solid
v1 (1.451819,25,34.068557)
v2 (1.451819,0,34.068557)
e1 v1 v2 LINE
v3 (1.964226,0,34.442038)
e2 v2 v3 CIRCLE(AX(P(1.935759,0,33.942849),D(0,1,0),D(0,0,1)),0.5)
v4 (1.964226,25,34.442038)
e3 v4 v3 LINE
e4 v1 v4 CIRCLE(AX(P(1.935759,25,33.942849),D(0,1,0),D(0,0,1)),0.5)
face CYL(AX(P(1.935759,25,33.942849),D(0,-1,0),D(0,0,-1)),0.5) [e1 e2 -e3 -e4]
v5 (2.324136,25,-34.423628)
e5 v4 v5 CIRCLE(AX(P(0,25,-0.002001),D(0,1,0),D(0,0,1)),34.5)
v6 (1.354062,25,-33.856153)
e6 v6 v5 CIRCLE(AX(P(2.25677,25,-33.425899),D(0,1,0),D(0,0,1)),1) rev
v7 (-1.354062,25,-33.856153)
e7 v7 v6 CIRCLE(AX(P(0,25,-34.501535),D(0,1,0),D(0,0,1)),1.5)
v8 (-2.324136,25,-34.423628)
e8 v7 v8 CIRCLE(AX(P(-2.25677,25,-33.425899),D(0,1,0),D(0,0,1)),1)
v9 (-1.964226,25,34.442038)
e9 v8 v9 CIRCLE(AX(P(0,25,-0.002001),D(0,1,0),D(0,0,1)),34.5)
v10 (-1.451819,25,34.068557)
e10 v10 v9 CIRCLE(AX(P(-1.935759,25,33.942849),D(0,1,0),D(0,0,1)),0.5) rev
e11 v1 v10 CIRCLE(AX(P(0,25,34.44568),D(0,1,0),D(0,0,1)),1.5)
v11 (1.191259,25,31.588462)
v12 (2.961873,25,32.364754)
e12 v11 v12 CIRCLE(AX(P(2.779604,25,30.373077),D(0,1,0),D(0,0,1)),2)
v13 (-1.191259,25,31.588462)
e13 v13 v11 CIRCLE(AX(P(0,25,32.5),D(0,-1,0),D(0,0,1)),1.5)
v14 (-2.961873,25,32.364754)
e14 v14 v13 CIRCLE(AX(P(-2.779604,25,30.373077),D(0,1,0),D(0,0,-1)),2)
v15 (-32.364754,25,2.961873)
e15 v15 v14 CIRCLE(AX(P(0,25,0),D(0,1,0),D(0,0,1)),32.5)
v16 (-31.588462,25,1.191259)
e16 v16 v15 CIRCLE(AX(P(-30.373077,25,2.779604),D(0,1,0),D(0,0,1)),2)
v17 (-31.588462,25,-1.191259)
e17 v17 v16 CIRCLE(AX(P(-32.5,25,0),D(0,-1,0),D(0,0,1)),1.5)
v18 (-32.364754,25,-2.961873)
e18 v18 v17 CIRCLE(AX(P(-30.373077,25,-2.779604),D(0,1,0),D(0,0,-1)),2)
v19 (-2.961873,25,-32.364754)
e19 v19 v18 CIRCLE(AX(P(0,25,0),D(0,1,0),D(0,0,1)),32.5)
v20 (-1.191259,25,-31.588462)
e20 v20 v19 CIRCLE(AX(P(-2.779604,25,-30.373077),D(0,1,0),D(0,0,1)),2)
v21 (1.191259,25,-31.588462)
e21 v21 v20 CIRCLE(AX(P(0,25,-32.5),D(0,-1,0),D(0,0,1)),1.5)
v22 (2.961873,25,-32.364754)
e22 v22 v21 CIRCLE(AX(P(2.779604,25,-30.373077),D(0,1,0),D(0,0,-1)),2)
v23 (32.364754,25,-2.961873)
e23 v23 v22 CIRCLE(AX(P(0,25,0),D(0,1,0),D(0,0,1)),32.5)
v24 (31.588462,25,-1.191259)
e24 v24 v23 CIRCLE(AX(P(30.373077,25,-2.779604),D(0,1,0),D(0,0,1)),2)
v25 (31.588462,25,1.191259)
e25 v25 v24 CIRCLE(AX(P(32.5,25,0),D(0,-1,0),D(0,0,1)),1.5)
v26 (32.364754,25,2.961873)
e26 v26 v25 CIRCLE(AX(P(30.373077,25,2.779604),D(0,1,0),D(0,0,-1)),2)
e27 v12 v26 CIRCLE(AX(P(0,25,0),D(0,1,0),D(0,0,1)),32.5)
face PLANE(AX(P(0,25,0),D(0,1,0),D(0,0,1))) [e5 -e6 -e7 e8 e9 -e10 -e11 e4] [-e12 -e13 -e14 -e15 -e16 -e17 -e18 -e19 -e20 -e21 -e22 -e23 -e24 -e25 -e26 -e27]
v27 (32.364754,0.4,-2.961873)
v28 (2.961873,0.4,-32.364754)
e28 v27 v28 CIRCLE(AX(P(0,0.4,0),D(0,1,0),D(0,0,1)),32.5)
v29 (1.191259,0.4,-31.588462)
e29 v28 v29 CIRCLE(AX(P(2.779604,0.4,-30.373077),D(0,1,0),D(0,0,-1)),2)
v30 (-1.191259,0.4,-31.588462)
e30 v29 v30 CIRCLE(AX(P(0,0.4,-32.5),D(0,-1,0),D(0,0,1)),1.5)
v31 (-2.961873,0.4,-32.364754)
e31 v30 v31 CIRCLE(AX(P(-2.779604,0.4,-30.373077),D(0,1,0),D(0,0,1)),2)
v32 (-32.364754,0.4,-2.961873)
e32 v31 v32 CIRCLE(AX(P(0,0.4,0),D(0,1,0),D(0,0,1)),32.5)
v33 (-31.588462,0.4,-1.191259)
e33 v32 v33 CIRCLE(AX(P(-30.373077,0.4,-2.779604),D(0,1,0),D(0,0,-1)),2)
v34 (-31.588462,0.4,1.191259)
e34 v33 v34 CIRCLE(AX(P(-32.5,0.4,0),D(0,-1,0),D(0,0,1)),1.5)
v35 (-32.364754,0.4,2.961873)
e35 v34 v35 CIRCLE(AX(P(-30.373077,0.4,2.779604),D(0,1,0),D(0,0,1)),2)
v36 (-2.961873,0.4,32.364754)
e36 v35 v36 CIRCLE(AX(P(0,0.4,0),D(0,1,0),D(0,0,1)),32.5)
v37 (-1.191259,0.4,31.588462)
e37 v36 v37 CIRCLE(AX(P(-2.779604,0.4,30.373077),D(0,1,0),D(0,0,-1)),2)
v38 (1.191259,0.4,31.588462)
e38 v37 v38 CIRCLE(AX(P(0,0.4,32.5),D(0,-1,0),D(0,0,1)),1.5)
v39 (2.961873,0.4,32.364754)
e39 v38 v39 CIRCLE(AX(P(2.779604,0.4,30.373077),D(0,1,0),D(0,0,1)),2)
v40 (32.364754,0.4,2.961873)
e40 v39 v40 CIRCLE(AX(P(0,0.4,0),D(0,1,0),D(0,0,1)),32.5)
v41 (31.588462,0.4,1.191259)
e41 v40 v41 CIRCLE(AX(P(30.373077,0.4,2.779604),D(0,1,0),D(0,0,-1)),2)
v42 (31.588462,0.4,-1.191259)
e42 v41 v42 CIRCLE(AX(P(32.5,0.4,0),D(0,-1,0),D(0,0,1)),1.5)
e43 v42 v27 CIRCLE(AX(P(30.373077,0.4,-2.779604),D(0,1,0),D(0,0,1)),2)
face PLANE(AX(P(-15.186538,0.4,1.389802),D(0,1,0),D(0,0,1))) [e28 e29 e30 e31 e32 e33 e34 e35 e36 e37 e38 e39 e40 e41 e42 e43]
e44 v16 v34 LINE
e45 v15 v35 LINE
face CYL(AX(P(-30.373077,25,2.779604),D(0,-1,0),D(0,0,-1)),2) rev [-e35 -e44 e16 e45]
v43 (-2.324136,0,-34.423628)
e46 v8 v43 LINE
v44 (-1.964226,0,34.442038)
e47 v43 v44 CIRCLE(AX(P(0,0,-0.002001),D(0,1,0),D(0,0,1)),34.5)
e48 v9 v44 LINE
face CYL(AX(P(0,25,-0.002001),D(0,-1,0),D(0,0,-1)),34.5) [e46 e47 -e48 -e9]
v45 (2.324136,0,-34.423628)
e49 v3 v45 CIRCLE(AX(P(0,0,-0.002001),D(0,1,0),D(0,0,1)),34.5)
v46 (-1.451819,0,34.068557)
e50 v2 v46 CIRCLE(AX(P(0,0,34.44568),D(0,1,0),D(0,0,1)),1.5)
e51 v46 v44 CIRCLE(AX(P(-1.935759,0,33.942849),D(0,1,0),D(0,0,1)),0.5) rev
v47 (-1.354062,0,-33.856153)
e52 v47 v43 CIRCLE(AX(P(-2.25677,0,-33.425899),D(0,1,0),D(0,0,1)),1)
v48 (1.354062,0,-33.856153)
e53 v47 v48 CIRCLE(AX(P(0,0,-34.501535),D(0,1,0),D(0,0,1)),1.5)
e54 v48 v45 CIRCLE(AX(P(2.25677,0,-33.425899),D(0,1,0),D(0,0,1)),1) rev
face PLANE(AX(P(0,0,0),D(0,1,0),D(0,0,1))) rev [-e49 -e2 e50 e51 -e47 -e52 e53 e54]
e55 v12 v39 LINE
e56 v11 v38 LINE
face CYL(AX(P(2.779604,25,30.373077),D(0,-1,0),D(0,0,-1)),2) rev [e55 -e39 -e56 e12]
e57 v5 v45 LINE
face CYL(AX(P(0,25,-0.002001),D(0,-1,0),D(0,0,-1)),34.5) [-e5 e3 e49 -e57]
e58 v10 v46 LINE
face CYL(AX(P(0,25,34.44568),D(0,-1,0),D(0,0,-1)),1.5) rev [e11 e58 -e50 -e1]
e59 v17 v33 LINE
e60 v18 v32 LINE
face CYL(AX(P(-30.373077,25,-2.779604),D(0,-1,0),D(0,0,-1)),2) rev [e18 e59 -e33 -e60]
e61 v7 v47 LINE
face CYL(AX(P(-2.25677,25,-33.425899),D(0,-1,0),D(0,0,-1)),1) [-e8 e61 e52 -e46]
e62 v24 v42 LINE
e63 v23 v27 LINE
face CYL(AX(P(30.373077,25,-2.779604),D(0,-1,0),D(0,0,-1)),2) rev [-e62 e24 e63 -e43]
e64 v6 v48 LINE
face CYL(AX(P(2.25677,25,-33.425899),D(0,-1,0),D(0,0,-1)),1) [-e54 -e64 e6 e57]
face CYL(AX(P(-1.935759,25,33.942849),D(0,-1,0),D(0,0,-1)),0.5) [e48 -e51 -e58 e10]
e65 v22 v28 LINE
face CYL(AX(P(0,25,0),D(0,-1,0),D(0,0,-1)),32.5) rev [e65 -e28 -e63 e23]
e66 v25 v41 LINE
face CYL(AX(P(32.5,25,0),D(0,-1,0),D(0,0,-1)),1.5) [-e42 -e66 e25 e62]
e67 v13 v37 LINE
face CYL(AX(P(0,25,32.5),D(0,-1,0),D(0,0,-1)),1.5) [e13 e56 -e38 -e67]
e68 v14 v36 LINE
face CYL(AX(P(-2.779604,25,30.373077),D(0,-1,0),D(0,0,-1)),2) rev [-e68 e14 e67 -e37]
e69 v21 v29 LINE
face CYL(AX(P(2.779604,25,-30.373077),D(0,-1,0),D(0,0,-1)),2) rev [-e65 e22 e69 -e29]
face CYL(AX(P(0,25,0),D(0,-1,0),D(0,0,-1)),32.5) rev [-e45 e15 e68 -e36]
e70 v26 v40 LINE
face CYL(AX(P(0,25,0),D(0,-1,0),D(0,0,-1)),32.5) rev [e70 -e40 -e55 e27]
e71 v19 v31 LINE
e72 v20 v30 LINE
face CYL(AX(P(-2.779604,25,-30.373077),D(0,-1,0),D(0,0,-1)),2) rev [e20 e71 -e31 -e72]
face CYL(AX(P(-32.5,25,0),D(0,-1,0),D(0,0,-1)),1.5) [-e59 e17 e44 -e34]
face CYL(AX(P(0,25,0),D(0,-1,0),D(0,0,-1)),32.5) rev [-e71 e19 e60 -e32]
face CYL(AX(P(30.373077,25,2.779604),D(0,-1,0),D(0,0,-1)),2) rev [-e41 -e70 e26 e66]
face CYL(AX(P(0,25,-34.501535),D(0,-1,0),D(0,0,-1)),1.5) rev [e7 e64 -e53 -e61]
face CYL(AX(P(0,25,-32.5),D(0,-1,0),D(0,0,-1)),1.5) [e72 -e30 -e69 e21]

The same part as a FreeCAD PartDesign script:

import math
import FreeCAD as App
import Part
import Sketcher

V = App.Vector

doc = App.newDocument("Part")
body = doc.addObject("PartDesign::Body", "Body")

sketch1 = doc.addObject("Sketcher::SketchObject", "Sketch")
body.addObject(sketch1)
sketch1.AttachmentSupport = (doc.XZ_Plane, [""])
sketch1.MapMode = "FlatFace"
sketch1.addGeometry(Part.ArcOfCircle(Part.Circle(V(1.9, 33.9, 0), V(0, 0, 1), 0.5), math.radians(87), math.radians(165)), False)
sketch1.addGeometry(Part.ArcOfCircle(Part.Circle(V(0, 0, 0), V(0, 0, 1), 34.5), math.radians(-8), math.radians(87)), False)
sketch1.addGeometry(Part.ArcOfCircle(Part.Circle(V(0, 0, 0), V(0, 0, 1), 34.5), math.radians(-86), math.radians(-8)), False)
sketch1.addGeometry(Part.ArcOfCircle(Part.Circle(V(2.3, -33.4, 0), V(0, 0, 1), 1), math.radians(-155), math.radians(-86)), False)
sketch1.addGeometry(Part.ArcOfCircle(Part.Circle(V(0, -34.5, 0), V(0, 0, 1), 1.5), math.radians(25), math.radians(155)), False)
sketch1.addGeometry(Part.ArcOfCircle(Part.Circle(V(-2.3, -33.4, 0), V(0, 0, 1), 1), math.radians(-94), math.radians(-25)), False)
sketch1.addGeometry(Part.ArcOfCircle(Part.Circle(V(0, 0, 0), V(0, 0, 1), 34.5), math.radians(-172), math.radians(-94)), False)
sketch1.addGeometry(Part.ArcOfCircle(Part.Circle(V(0, 0, 0), V(0, 0, 1), 34.5), math.radians(93), math.radians(188)), False)
sketch1.addGeometry(Part.ArcOfCircle(Part.Circle(V(-1.9, 33.9, 0), V(0, 0, 1), 0.5), math.radians(15), math.radians(93)), False)
sketch1.addGeometry(Part.ArcOfCircle(Part.Circle(V(0, 34.4, 0), V(0, 0, 1), 1.5), math.radians(-165), math.radians(-15)), False)
sketch1.addGeometry(Part.ArcOfCircle(Part.Circle(V(0, 0, 0), V(0, 0, 1), 4.5), math.radians(-57), math.radians(237)), False)
sketch1.addGeometry(Part.LineSegment(V(-2.4, -3.8, 0), V(2.4, -3.8, 0)), False)
sketch1.addConstraint(Sketcher.Constraint("Tangent", 0, 1, 1, 2))
sketch1.addConstraint(Sketcher.Constraint("Tangent", 1, 1, 2, 2))
sketch1.addConstraint(Sketcher.Constraint("Tangent", 2, 1, 3, 2))
sketch1.addConstraint(Sketcher.Constraint("Tangent", 3, 1, 4, 1))
sketch1.addConstraint(Sketcher.Constraint("Tangent", 4, 2, 5, 2))
sketch1.addConstraint(Sketcher.Constraint("Tangent", 5, 1, 6, 2))
sketch1.addConstraint(Sketcher.Constraint("Tangent", 6, 1, 7, 2))
sketch1.addConstraint(Sketcher.Constraint("Tangent", 7, 1, 8, 2))
sketch1.addConstraint(Sketcher.Constraint("Tangent", 8, 1, 9, 1))
sketch1.addConstraint(Sketcher.Constraint("Tangent", 9, 2, 0, 2))
sketch1.addConstraint(Sketcher.Constraint("Coincident", 10, 1, 11, 2))
sketch1.addConstraint(Sketcher.Constraint("Coincident", 11, 1, 10, 2))
sketch1.addConstraint(Sketcher.Constraint("Horizontal", 11))
sketch1.addConstraint(Sketcher.Constraint("Coincident", 6, 3, 1, 3))
sketch1.addConstraint(Sketcher.Constraint("Coincident", 10, 3, 1, 3))
sketch1.addConstraint(Sketcher.Constraint("Equal", 1, 2))
sketch1.addConstraint(Sketcher.Constraint("Equal", 3, 5))
sketch1.addConstraint(Sketcher.Constraint("Equal", 2, 6))
sketch1.addConstraint(Sketcher.Constraint("Equal", 6, 7))
sketch1.addConstraint(Sketcher.Constraint("Equal", 0, 8))
sketch1.addConstraint(Sketcher.Constraint("Equal", 4, 9))
sketch1.addConstraint(Sketcher.Constraint("Symmetric", 3, 3, 5, 3, -2))
sketch1.addConstraint(Sketcher.Constraint("PointOnObject", 9, 3, -2))
sketch1.addConstraint(Sketcher.Constraint("Horizontal", 1, 1, 6, 1))
sketch1.addConstraint(Sketcher.Constraint("Radius", 3, 1.0))
sketch1.addConstraint(Sketcher.Constraint("Radius", 0, 0.5))
sketch1.addConstraint(Sketcher.Constraint("Radius", 1, 34.5))
sketch1.addConstraint(Sketcher.Constraint("Radius", 4, 1.5))
sketch1.addConstraint(Sketcher.Constraint("DistanceX", 11, 1, 11, 2, 4.834))
sketch1.addConstraint(Sketcher.Constraint("DistanceY", 1, 3, -1, 1, 0.002001))
sketch1.addConstraint(Sketcher.Constraint("Radius", 10, 4.491513))
sketch1.addConstraint(Sketcher.Constraint("DistanceY", 3, 3, -1, 1, 33.425899))
sketch1.addConstraint(Sketcher.Constraint("DistanceX", -1, 1, 0, 3, 1.935759))
sketch1.addConstraint(Sketcher.Constraint("DistanceX", -1, 1, 1, 1, 34.198225))
pad1 = doc.addObject("PartDesign::Pad", "Pad")
body.addObject(pad1)
pad1.Profile = sketch1
pad1.Length = 25
pad1.Reversed = True

sketch2 = doc.addObject("Sketcher::SketchObject", "Sketch001")
body.addObject(sketch2)
sketch2.AttachmentSupport = (doc.XZ_Plane, [""])
sketch2.MapMode = "FlatFace"
sketch2.addGeometry(Part.ArcOfCircle(Part.Circle(V(0, 0, 0), V(0, 0, 1), 32.5), math.radians(95), math.radians(175)), False)
sketch2.addGeometry(Part.ArcOfCircle(Part.Circle(V(-2.8, 30.4, 0), V(0, 0, 1), 2), math.radians(37), math.radians(95)), False)
sketch2.addGeometry(Part.ArcOfCircle(Part.Circle(V(0, 32.5, 0), V(0, 0, 1), 1.5), math.radians(-143), math.radians(-37)), False)
sketch2.addGeometry(Part.ArcOfCircle(Part.Circle(V(2.8, 30.4, 0), V(0, 0, 1), 2), math.radians(85), math.radians(143)), False)
sketch2.addGeometry(Part.ArcOfCircle(Part.Circle(V(0, 0, 0), V(0, 0, 1), 32.5), math.radians(5), math.radians(85)), False)
sketch2.addGeometry(Part.ArcOfCircle(Part.Circle(V(30.4, 2.8, 0), V(0, 0, 1), 2), math.radians(-53), math.radians(5)), False)
sketch2.addGeometry(Part.ArcOfCircle(Part.Circle(V(32.5, 0, 0), V(0, 0, 1), 1.5), math.radians(127), math.radians(233)), False)
sketch2.addGeometry(Part.ArcOfCircle(Part.Circle(V(30.4, -2.8, 0), V(0, 0, 1), 2), math.radians(-5), math.radians(53)), False)
sketch2.addGeometry(Part.ArcOfCircle(Part.Circle(V(0, 0, 0), V(0, 0, 1), 32.5), math.radians(-85), math.radians(-5)), False)
sketch2.addGeometry(Part.ArcOfCircle(Part.Circle(V(2.8, -30.4, 0), V(0, 0, 1), 2), math.radians(-143), math.radians(-85)), False)
sketch2.addGeometry(Part.ArcOfCircle(Part.Circle(V(0, -32.5, 0), V(0, 0, 1), 1.5), math.radians(37), math.radians(143)), False)
sketch2.addGeometry(Part.ArcOfCircle(Part.Circle(V(-2.8, -30.4, 0), V(0, 0, 1), 2), math.radians(-95), math.radians(-37)), False)
sketch2.addGeometry(Part.ArcOfCircle(Part.Circle(V(0, 0, 0), V(0, 0, 1), 32.5), math.radians(-175), math.radians(-95)), False)
sketch2.addGeometry(Part.ArcOfCircle(Part.Circle(V(-30.4, -2.8, 0), V(0, 0, 1), 2), math.radians(127), math.radians(185)), False)
sketch2.addGeometry(Part.ArcOfCircle(Part.Circle(V(-32.5, 0, 0), V(0, 0, 1), 1.5), math.radians(-53), math.radians(53)), False)
sketch2.addGeometry(Part.ArcOfCircle(Part.Circle(V(-30.4, 2.8, 0), V(0, 0, 1), 2), math.radians(175), math.radians(233)), False)
sketch2.addConstraint(Sketcher.Constraint("Tangent", 0, 1, 1, 2))
sketch2.addConstraint(Sketcher.Constraint("Tangent", 1, 1, 2, 1))
sketch2.addConstraint(Sketcher.Constraint("Tangent", 2, 2, 3, 2))
sketch2.addConstraint(Sketcher.Constraint("Tangent", 3, 1, 4, 2))
sketch2.addConstraint(Sketcher.Constraint("Tangent", 4, 1, 5, 2))
sketch2.addConstraint(Sketcher.Constraint("Tangent", 5, 1, 6, 1))
sketch2.addConstraint(Sketcher.Constraint("Tangent", 6, 2, 7, 2))
sketch2.addConstraint(Sketcher.Constraint("Tangent", 7, 1, 8, 2))
sketch2.addConstraint(Sketcher.Constraint("Tangent", 8, 1, 9, 2))
sketch2.addConstraint(Sketcher.Constraint("Tangent", 9, 1, 10, 1))
sketch2.addConstraint(Sketcher.Constraint("Tangent", 10, 2, 11, 2))
sketch2.addConstraint(Sketcher.Constraint("Tangent", 11, 1, 12, 2))
sketch2.addConstraint(Sketcher.Constraint("Tangent", 12, 1, 13, 2))
sketch2.addConstraint(Sketcher.Constraint("Tangent", 13, 1, 14, 1))
sketch2.addConstraint(Sketcher.Constraint("Tangent", 14, 2, 15, 2))
sketch2.addConstraint(Sketcher.Constraint("Tangent", 15, 1, 0, 2))
sketch2.addConstraint(Sketcher.Constraint("Coincident", 0, 3, -1, 1))
sketch2.addConstraint(Sketcher.Constraint("Coincident", 4, 3, -1, 1))
sketch2.addConstraint(Sketcher.Constraint("Coincident", 8, 3, -1, 1))
sketch2.addConstraint(Sketcher.Constraint("Coincident", 12, 3, -1, 1))
sketch2.addConstraint(Sketcher.Constraint("Equal", 1, 3))
sketch2.addConstraint(Sketcher.Constraint("Equal", 0, 4))
sketch2.addConstraint(Sketcher.Constraint("Equal", 3, 5))
sketch2.addConstraint(Sketcher.Constraint("Equal", 2, 6))
sketch2.addConstraint(Sketcher.Constraint("Equal", 5, 7))
sketch2.addConstraint(Sketcher.Constraint("Equal", 4, 8))
sketch2.addConstraint(Sketcher.Constraint("Equal", 7, 9))
sketch2.addConstraint(Sketcher.Constraint("Equal", 6, 10))
sketch2.addConstraint(Sketcher.Constraint("Equal", 9, 11))
sketch2.addConstraint(Sketcher.Constraint("Equal", 8, 12))
sketch2.addConstraint(Sketcher.Constraint("Equal", 11, 13))
sketch2.addConstraint(Sketcher.Constraint("Equal", 10, 14))
sketch2.addConstraint(Sketcher.Constraint("Equal", 13, 15))
sketch2.addConstraint(Sketcher.Constraint("Symmetric", 2, 3, 10, 3, -1, 1))
sketch2.addConstraint(Sketcher.Constraint("Symmetric", 6, 3, 14, 3, -1, 1))
sketch2.addConstraint(Sketcher.Constraint("PointOnObject", 2, 3, -2))
sketch2.addConstraint(Sketcher.Constraint("PointOnObject", 6, 3, -1))
sketch2.addConstraint(Sketcher.Constraint("Radius", 1, 2.0))
sketch2.addConstraint(Sketcher.Constraint("Radius", 0, 32.5))
sketch2.addConstraint(Sketcher.Constraint("Radius", 2, 1.5))
sketch2.addConstraint(Sketcher.Constraint("DistanceY", -1, 1, 2, 3, 32.5))
sketch2.addConstraint(Sketcher.Constraint("DistanceX", -1, 1, 6, 3, 32.5))
pocket1 = doc.addObject("PartDesign::Pocket", "Pocket")
body.addObject(pocket1)
pocket1.Profile = sketch2
pocket1.Type = "ThroughAll"

sketch3 = doc.addObject("Sketcher::SketchObject", "Sketch002")
body.addObject(sketch3)
sketch3.AttachmentSupport = (doc.XZ_Plane, [""])
sketch3.MapMode = "FlatFace"
sketch3.addGeometry(Part.ArcOfCircle(Part.Circle(V(0, 0, 0), V(0, 0, 1), 32.5), math.radians(95), math.radians(175)), False)
sketch3.addGeometry(Part.ArcOfCircle(Part.Circle(V(-2.8, 30.4, 0), V(0, 0, 1), 2), math.radians(37), math.radians(95)), False)
sketch3.addGeometry(Part.ArcOfCircle(Part.Circle(V(0, 32.5, 0), V(0, 0, 1), 1.5), math.radians(-143), math.radians(-37)), False)
sketch3.addGeometry(Part.ArcOfCircle(Part.Circle(V(2.8, 30.4, 0), V(0, 0, 1), 2), math.radians(85), math.radians(143)), False)
sketch3.addGeometry(Part.ArcOfCircle(Part.Circle(V(0, 0, 0), V(0, 0, 1), 32.5), math.radians(5), math.radians(85)), False)
sketch3.addGeometry(Part.ArcOfCircle(Part.Circle(V(30.4, 2.8, 0), V(0, 0, 1), 2), math.radians(-53), math.radians(5)), False)
sketch3.addGeometry(Part.ArcOfCircle(Part.Circle(V(32.5, 0, 0), V(0, 0, 1), 1.5), math.radians(127), math.radians(233)), False)
sketch3.addGeometry(Part.ArcOfCircle(Part.Circle(V(30.4, -2.8, 0), V(0, 0, 1), 2), math.radians(-5), math.radians(53)), False)
sketch3.addGeometry(Part.ArcOfCircle(Part.Circle(V(0, 0, 0), V(0, 0, 1), 32.5), math.radians(-85), math.radians(-5)), False)
sketch3.addGeometry(Part.ArcOfCircle(Part.Circle(V(2.8, -30.4, 0), V(0, 0, 1), 2), math.radians(-143), math.radians(-85)), False)
sketch3.addGeometry(Part.ArcOfCircle(Part.Circle(V(0, -32.5, 0), V(0, 0, 1), 1.5), math.radians(37), math.radians(143)), False)
sketch3.addGeometry(Part.ArcOfCircle(Part.Circle(V(-2.8, -30.4, 0), V(0, 0, 1), 2), math.radians(-95), math.radians(-37)), False)
sketch3.addGeometry(Part.ArcOfCircle(Part.Circle(V(0, 0, 0), V(0, 0, 1), 32.5), math.radians(-175), math.radians(-95)), False)
sketch3.addGeometry(Part.ArcOfCircle(Part.Circle(V(-30.4, -2.8, 0), V(0, 0, 1), 2), math.radians(127), math.radians(185)), False)
sketch3.addGeometry(Part.ArcOfCircle(Part.Circle(V(-32.5, 0, 0), V(0, 0, 1), 1.5), math.radians(-53), math.radians(53)), False)
sketch3.addGeometry(Part.ArcOfCircle(Part.Circle(V(-30.4, 2.8, 0), V(0, 0, 1), 2), math.radians(175), math.radians(233)), False)
sketch3.addConstraint(Sketcher.Constraint("Tangent", 0, 1, 1, 2))
sketch3.addConstraint(Sketcher.Constraint("Tangent", 1, 1, 2, 1))
sketch3.addConstraint(Sketcher.Constraint("Tangent", 2, 2, 3, 2))
sketch3.addConstraint(Sketcher.Constraint("Tangent", 3, 1, 4, 2))
sketch3.addConstraint(Sketcher.Constraint("Tangent", 4, 1, 5, 2))
sketch3.addConstraint(Sketcher.Constraint("Tangent", 5, 1, 6, 1))
sketch3.addConstraint(Sketcher.Constraint("Tangent", 6, 2, 7, 2))
sketch3.addConstraint(Sketcher.Constraint("Tangent", 7, 1, 8, 2))
sketch3.addConstraint(Sketcher.Constraint("Tangent", 8, 1, 9, 2))
sketch3.addConstraint(Sketcher.Constraint("Tangent", 9, 1, 10, 1))
sketch3.addConstraint(Sketcher.Constraint("Tangent", 10, 2, 11, 2))
sketch3.addConstraint(Sketcher.Constraint("Tangent", 11, 1, 12, 2))
sketch3.addConstraint(Sketcher.Constraint("Tangent", 12, 1, 13, 2))
sketch3.addConstraint(Sketcher.Constraint("Tangent", 13, 1, 14, 1))
sketch3.addConstraint(Sketcher.Constraint("Tangent", 14, 2, 15, 2))
sketch3.addConstraint(Sketcher.Constraint("Tangent", 15, 1, 0, 2))
sketch3.addConstraint(Sketcher.Constraint("Coincident", 0, 3, -1, 1))
sketch3.addConstraint(Sketcher.Constraint("Coincident", 4, 3, -1, 1))
sketch3.addConstraint(Sketcher.Constraint("Coincident", 8, 3, -1, 1))
sketch3.addConstraint(Sketcher.Constraint("Coincident", 12, 3, -1, 1))
sketch3.addConstraint(Sketcher.Constraint("Equal", 1, 3))
sketch3.addConstraint(Sketcher.Constraint("Equal", 0, 4))
sketch3.addConstraint(Sketcher.Constraint("Equal", 3, 5))
sketch3.addConstraint(Sketcher.Constraint("Equal", 2, 6))
sketch3.addConstraint(Sketcher.Constraint("Equal", 5, 7))
sketch3.addConstraint(Sketcher.Constraint("Equal", 4, 8))
sketch3.addConstraint(Sketcher.Constraint("Equal", 7, 9))
sketch3.addConstraint(Sketcher.Constraint("Equal", 6, 10))
sketch3.addConstraint(Sketcher.Constraint("Equal", 9, 11))
sketch3.addConstraint(Sketcher.Constraint("Equal", 8, 12))
sketch3.addConstraint(Sketcher.Constraint("Equal", 11, 13))
sketch3.addConstraint(Sketcher.Constraint("Equal", 10, 14))
sketch3.addConstraint(Sketcher.Constraint("Equal", 13, 15))
sketch3.addConstraint(Sketcher.Constraint("Symmetric", 2, 3, 10, 3, -1, 1))
sketch3.addConstraint(Sketcher.Constraint("Symmetric", 6, 3, 14, 3, -1, 1))
sketch3.addConstraint(Sketcher.Constraint("PointOnObject", 2, 3, -2))
sketch3.addConstraint(Sketcher.Constraint("PointOnObject", 6, 3, -1))
sketch3.addConstraint(Sketcher.Constraint("Radius", 1, 2.0))
sketch3.addConstraint(Sketcher.Constraint("Radius", 0, 32.5))
sketch3.addConstraint(Sketcher.Constraint("Radius", 2, 1.5))
sketch3.addConstraint(Sketcher.Constraint("DistanceY", -1, 1, 2, 3, 32.5))
sketch3.addConstraint(Sketcher.Constraint("DistanceX", -1, 1, 6, 3, 32.5))
pad2 = doc.addObject("PartDesign::Pad", "Pad001")
body.addObject(pad2)
pad2.Profile = sketch3
pad2.Length = 0.4
pad2.Reversed = True

doc.recompute()
